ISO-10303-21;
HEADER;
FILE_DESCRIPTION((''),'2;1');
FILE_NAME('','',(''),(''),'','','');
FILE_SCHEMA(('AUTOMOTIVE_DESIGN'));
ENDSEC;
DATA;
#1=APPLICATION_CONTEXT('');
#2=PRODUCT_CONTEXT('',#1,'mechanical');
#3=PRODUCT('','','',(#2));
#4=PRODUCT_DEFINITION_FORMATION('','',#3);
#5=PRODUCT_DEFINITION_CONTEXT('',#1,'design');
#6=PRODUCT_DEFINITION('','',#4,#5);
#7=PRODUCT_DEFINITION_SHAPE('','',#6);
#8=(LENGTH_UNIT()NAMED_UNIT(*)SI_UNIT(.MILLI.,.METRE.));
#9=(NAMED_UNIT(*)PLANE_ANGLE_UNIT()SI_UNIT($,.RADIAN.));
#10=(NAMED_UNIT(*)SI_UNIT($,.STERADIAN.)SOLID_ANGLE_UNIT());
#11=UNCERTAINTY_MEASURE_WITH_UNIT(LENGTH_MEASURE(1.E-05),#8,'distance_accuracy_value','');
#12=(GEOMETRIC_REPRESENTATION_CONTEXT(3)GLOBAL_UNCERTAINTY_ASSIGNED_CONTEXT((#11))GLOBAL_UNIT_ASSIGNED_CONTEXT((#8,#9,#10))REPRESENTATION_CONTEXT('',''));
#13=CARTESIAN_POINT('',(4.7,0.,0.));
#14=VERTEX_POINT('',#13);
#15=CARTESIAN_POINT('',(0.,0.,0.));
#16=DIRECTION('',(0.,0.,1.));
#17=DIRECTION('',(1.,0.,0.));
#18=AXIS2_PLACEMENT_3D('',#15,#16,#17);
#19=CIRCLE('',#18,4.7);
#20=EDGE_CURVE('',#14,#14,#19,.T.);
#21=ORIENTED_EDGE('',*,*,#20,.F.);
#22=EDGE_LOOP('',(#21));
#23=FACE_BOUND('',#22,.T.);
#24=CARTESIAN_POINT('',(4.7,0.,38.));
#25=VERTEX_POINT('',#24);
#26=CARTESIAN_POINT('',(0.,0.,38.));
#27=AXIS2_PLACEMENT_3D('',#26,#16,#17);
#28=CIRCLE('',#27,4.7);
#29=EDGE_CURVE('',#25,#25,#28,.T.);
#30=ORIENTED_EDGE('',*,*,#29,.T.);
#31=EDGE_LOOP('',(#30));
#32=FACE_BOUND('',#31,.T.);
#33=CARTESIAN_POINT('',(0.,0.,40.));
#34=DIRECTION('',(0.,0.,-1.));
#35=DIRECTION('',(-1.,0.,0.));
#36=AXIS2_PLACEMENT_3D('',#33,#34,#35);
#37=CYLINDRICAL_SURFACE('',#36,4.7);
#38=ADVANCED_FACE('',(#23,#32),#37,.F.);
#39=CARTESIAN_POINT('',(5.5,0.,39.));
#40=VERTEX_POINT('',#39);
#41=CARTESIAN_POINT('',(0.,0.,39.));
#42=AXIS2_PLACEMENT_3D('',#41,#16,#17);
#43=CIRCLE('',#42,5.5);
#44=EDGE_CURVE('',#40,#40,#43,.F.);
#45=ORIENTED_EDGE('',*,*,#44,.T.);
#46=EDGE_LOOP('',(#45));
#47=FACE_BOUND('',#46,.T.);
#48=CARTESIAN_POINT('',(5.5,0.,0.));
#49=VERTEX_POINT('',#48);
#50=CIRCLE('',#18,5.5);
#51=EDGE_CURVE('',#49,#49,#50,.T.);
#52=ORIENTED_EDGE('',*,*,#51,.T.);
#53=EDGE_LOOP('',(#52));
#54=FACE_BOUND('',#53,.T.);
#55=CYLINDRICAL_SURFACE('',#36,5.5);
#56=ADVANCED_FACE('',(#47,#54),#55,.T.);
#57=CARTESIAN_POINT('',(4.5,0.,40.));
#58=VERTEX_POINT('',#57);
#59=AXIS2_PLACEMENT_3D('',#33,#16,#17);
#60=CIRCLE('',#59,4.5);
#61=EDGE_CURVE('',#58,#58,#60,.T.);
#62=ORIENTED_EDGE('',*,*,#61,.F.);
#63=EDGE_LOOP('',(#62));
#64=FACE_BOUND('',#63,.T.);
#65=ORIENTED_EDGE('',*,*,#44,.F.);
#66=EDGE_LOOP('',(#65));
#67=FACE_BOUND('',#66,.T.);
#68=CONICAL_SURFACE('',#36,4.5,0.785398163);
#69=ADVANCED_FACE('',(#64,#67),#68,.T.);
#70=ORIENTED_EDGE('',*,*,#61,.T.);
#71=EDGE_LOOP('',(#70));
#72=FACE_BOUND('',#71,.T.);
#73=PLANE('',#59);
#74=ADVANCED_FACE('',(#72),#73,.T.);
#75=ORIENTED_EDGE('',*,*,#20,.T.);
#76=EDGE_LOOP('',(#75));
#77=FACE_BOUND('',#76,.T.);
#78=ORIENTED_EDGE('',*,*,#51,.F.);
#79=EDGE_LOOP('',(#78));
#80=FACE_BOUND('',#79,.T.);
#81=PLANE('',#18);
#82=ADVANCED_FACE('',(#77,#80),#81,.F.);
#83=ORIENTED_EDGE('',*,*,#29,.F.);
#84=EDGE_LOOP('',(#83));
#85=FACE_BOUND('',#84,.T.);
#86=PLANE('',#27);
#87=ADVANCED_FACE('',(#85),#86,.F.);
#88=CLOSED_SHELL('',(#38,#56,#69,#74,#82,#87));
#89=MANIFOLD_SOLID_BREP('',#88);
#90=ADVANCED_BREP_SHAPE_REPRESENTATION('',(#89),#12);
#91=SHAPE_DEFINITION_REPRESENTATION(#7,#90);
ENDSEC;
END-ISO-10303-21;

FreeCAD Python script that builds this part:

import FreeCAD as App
import Part
import Sketcher


def edges_at(feature, points):
    """Names of the edges that pass closest to the given points."""
    edges = feature.Shape.Edges
    near = lambda p: min(range(len(edges)), key=lambda i: edges[i].distToShape(Part.Vertex(*p))[0])
    return sorted({f"Edge{near(p) + 1}" for p in points})

doc = App.newDocument("Part")
body = doc.addObject("PartDesign::Body", "Body")

# Sketch on XY plane
sketch1 = doc.addObject("Sketcher::SketchObject", "Sketch")
body.addObject(sketch1)
sketch1.AttachmentSupport = (doc.XY_Plane, [""])
sketch1.MapMode = "FlatFace"
sketch1.addGeometry(Part.Circle(App.Vector(0, 0, 0), App.Vector(0, 0, 1), 5.5), False)
sketch1.addGeometry(Part.Circle(App.Vector(0, 0, 0), App.Vector(0, 0, 1), 4.7), False)
sketch1.addConstraint(Sketcher.Constraint("Coincident", 0, 3, -1, 1))
sketch1.addConstraint(Sketcher.Constraint("Coincident", 1, 3, -1, 1))
sketch1.addConstraint(Sketcher.Constraint("Diameter", 0, 11.0))
sketch1.addConstraint(Sketcher.Constraint("Diameter", 1, 9.4))
pad1 = doc.addObject("PartDesign::Pad", "Pad")
body.addObject(pad1)
pad1.Profile = sketch1
pad1.Length = 40

# Sketch on XY plane
sketch2 = doc.addObject("Sketcher::SketchObject", "Sketch001")
body.addObject(sketch2)
sketch2.AttachmentSupport = (doc.XY_Plane, [""])
sketch2.MapMode = "FlatFace"
sketch2.AttachmentOffset = App.Placement(App.Vector(0, 0, 40), App.Rotation())
sketch2.addGeometry(Part.Circle(App.Vector(0, 0, 0), App.Vector(0, 0, 1), 6), False)
sketch2.addConstraint(Sketcher.Constraint("Coincident", 0, 3, -1, 1))
sketch2.addConstraint(Sketcher.Constraint("Diameter", 0, 11.0))
pad2 = doc.addObject("PartDesign::Pad", "Pad001")
body.addObject(pad2)
pad2.Profile = sketch2
pad2.Length = 2
pad2.Reversed = True
doc.recompute()

chamfer = doc.addObject("PartDesign::Chamfer", "Chamfer")
body.addObject(chamfer)
chamfer.Base = (pad2, edges_at(pad2, [(-5.5, 0, 40)]))
chamfer.Size = 1

doc.recompute()
